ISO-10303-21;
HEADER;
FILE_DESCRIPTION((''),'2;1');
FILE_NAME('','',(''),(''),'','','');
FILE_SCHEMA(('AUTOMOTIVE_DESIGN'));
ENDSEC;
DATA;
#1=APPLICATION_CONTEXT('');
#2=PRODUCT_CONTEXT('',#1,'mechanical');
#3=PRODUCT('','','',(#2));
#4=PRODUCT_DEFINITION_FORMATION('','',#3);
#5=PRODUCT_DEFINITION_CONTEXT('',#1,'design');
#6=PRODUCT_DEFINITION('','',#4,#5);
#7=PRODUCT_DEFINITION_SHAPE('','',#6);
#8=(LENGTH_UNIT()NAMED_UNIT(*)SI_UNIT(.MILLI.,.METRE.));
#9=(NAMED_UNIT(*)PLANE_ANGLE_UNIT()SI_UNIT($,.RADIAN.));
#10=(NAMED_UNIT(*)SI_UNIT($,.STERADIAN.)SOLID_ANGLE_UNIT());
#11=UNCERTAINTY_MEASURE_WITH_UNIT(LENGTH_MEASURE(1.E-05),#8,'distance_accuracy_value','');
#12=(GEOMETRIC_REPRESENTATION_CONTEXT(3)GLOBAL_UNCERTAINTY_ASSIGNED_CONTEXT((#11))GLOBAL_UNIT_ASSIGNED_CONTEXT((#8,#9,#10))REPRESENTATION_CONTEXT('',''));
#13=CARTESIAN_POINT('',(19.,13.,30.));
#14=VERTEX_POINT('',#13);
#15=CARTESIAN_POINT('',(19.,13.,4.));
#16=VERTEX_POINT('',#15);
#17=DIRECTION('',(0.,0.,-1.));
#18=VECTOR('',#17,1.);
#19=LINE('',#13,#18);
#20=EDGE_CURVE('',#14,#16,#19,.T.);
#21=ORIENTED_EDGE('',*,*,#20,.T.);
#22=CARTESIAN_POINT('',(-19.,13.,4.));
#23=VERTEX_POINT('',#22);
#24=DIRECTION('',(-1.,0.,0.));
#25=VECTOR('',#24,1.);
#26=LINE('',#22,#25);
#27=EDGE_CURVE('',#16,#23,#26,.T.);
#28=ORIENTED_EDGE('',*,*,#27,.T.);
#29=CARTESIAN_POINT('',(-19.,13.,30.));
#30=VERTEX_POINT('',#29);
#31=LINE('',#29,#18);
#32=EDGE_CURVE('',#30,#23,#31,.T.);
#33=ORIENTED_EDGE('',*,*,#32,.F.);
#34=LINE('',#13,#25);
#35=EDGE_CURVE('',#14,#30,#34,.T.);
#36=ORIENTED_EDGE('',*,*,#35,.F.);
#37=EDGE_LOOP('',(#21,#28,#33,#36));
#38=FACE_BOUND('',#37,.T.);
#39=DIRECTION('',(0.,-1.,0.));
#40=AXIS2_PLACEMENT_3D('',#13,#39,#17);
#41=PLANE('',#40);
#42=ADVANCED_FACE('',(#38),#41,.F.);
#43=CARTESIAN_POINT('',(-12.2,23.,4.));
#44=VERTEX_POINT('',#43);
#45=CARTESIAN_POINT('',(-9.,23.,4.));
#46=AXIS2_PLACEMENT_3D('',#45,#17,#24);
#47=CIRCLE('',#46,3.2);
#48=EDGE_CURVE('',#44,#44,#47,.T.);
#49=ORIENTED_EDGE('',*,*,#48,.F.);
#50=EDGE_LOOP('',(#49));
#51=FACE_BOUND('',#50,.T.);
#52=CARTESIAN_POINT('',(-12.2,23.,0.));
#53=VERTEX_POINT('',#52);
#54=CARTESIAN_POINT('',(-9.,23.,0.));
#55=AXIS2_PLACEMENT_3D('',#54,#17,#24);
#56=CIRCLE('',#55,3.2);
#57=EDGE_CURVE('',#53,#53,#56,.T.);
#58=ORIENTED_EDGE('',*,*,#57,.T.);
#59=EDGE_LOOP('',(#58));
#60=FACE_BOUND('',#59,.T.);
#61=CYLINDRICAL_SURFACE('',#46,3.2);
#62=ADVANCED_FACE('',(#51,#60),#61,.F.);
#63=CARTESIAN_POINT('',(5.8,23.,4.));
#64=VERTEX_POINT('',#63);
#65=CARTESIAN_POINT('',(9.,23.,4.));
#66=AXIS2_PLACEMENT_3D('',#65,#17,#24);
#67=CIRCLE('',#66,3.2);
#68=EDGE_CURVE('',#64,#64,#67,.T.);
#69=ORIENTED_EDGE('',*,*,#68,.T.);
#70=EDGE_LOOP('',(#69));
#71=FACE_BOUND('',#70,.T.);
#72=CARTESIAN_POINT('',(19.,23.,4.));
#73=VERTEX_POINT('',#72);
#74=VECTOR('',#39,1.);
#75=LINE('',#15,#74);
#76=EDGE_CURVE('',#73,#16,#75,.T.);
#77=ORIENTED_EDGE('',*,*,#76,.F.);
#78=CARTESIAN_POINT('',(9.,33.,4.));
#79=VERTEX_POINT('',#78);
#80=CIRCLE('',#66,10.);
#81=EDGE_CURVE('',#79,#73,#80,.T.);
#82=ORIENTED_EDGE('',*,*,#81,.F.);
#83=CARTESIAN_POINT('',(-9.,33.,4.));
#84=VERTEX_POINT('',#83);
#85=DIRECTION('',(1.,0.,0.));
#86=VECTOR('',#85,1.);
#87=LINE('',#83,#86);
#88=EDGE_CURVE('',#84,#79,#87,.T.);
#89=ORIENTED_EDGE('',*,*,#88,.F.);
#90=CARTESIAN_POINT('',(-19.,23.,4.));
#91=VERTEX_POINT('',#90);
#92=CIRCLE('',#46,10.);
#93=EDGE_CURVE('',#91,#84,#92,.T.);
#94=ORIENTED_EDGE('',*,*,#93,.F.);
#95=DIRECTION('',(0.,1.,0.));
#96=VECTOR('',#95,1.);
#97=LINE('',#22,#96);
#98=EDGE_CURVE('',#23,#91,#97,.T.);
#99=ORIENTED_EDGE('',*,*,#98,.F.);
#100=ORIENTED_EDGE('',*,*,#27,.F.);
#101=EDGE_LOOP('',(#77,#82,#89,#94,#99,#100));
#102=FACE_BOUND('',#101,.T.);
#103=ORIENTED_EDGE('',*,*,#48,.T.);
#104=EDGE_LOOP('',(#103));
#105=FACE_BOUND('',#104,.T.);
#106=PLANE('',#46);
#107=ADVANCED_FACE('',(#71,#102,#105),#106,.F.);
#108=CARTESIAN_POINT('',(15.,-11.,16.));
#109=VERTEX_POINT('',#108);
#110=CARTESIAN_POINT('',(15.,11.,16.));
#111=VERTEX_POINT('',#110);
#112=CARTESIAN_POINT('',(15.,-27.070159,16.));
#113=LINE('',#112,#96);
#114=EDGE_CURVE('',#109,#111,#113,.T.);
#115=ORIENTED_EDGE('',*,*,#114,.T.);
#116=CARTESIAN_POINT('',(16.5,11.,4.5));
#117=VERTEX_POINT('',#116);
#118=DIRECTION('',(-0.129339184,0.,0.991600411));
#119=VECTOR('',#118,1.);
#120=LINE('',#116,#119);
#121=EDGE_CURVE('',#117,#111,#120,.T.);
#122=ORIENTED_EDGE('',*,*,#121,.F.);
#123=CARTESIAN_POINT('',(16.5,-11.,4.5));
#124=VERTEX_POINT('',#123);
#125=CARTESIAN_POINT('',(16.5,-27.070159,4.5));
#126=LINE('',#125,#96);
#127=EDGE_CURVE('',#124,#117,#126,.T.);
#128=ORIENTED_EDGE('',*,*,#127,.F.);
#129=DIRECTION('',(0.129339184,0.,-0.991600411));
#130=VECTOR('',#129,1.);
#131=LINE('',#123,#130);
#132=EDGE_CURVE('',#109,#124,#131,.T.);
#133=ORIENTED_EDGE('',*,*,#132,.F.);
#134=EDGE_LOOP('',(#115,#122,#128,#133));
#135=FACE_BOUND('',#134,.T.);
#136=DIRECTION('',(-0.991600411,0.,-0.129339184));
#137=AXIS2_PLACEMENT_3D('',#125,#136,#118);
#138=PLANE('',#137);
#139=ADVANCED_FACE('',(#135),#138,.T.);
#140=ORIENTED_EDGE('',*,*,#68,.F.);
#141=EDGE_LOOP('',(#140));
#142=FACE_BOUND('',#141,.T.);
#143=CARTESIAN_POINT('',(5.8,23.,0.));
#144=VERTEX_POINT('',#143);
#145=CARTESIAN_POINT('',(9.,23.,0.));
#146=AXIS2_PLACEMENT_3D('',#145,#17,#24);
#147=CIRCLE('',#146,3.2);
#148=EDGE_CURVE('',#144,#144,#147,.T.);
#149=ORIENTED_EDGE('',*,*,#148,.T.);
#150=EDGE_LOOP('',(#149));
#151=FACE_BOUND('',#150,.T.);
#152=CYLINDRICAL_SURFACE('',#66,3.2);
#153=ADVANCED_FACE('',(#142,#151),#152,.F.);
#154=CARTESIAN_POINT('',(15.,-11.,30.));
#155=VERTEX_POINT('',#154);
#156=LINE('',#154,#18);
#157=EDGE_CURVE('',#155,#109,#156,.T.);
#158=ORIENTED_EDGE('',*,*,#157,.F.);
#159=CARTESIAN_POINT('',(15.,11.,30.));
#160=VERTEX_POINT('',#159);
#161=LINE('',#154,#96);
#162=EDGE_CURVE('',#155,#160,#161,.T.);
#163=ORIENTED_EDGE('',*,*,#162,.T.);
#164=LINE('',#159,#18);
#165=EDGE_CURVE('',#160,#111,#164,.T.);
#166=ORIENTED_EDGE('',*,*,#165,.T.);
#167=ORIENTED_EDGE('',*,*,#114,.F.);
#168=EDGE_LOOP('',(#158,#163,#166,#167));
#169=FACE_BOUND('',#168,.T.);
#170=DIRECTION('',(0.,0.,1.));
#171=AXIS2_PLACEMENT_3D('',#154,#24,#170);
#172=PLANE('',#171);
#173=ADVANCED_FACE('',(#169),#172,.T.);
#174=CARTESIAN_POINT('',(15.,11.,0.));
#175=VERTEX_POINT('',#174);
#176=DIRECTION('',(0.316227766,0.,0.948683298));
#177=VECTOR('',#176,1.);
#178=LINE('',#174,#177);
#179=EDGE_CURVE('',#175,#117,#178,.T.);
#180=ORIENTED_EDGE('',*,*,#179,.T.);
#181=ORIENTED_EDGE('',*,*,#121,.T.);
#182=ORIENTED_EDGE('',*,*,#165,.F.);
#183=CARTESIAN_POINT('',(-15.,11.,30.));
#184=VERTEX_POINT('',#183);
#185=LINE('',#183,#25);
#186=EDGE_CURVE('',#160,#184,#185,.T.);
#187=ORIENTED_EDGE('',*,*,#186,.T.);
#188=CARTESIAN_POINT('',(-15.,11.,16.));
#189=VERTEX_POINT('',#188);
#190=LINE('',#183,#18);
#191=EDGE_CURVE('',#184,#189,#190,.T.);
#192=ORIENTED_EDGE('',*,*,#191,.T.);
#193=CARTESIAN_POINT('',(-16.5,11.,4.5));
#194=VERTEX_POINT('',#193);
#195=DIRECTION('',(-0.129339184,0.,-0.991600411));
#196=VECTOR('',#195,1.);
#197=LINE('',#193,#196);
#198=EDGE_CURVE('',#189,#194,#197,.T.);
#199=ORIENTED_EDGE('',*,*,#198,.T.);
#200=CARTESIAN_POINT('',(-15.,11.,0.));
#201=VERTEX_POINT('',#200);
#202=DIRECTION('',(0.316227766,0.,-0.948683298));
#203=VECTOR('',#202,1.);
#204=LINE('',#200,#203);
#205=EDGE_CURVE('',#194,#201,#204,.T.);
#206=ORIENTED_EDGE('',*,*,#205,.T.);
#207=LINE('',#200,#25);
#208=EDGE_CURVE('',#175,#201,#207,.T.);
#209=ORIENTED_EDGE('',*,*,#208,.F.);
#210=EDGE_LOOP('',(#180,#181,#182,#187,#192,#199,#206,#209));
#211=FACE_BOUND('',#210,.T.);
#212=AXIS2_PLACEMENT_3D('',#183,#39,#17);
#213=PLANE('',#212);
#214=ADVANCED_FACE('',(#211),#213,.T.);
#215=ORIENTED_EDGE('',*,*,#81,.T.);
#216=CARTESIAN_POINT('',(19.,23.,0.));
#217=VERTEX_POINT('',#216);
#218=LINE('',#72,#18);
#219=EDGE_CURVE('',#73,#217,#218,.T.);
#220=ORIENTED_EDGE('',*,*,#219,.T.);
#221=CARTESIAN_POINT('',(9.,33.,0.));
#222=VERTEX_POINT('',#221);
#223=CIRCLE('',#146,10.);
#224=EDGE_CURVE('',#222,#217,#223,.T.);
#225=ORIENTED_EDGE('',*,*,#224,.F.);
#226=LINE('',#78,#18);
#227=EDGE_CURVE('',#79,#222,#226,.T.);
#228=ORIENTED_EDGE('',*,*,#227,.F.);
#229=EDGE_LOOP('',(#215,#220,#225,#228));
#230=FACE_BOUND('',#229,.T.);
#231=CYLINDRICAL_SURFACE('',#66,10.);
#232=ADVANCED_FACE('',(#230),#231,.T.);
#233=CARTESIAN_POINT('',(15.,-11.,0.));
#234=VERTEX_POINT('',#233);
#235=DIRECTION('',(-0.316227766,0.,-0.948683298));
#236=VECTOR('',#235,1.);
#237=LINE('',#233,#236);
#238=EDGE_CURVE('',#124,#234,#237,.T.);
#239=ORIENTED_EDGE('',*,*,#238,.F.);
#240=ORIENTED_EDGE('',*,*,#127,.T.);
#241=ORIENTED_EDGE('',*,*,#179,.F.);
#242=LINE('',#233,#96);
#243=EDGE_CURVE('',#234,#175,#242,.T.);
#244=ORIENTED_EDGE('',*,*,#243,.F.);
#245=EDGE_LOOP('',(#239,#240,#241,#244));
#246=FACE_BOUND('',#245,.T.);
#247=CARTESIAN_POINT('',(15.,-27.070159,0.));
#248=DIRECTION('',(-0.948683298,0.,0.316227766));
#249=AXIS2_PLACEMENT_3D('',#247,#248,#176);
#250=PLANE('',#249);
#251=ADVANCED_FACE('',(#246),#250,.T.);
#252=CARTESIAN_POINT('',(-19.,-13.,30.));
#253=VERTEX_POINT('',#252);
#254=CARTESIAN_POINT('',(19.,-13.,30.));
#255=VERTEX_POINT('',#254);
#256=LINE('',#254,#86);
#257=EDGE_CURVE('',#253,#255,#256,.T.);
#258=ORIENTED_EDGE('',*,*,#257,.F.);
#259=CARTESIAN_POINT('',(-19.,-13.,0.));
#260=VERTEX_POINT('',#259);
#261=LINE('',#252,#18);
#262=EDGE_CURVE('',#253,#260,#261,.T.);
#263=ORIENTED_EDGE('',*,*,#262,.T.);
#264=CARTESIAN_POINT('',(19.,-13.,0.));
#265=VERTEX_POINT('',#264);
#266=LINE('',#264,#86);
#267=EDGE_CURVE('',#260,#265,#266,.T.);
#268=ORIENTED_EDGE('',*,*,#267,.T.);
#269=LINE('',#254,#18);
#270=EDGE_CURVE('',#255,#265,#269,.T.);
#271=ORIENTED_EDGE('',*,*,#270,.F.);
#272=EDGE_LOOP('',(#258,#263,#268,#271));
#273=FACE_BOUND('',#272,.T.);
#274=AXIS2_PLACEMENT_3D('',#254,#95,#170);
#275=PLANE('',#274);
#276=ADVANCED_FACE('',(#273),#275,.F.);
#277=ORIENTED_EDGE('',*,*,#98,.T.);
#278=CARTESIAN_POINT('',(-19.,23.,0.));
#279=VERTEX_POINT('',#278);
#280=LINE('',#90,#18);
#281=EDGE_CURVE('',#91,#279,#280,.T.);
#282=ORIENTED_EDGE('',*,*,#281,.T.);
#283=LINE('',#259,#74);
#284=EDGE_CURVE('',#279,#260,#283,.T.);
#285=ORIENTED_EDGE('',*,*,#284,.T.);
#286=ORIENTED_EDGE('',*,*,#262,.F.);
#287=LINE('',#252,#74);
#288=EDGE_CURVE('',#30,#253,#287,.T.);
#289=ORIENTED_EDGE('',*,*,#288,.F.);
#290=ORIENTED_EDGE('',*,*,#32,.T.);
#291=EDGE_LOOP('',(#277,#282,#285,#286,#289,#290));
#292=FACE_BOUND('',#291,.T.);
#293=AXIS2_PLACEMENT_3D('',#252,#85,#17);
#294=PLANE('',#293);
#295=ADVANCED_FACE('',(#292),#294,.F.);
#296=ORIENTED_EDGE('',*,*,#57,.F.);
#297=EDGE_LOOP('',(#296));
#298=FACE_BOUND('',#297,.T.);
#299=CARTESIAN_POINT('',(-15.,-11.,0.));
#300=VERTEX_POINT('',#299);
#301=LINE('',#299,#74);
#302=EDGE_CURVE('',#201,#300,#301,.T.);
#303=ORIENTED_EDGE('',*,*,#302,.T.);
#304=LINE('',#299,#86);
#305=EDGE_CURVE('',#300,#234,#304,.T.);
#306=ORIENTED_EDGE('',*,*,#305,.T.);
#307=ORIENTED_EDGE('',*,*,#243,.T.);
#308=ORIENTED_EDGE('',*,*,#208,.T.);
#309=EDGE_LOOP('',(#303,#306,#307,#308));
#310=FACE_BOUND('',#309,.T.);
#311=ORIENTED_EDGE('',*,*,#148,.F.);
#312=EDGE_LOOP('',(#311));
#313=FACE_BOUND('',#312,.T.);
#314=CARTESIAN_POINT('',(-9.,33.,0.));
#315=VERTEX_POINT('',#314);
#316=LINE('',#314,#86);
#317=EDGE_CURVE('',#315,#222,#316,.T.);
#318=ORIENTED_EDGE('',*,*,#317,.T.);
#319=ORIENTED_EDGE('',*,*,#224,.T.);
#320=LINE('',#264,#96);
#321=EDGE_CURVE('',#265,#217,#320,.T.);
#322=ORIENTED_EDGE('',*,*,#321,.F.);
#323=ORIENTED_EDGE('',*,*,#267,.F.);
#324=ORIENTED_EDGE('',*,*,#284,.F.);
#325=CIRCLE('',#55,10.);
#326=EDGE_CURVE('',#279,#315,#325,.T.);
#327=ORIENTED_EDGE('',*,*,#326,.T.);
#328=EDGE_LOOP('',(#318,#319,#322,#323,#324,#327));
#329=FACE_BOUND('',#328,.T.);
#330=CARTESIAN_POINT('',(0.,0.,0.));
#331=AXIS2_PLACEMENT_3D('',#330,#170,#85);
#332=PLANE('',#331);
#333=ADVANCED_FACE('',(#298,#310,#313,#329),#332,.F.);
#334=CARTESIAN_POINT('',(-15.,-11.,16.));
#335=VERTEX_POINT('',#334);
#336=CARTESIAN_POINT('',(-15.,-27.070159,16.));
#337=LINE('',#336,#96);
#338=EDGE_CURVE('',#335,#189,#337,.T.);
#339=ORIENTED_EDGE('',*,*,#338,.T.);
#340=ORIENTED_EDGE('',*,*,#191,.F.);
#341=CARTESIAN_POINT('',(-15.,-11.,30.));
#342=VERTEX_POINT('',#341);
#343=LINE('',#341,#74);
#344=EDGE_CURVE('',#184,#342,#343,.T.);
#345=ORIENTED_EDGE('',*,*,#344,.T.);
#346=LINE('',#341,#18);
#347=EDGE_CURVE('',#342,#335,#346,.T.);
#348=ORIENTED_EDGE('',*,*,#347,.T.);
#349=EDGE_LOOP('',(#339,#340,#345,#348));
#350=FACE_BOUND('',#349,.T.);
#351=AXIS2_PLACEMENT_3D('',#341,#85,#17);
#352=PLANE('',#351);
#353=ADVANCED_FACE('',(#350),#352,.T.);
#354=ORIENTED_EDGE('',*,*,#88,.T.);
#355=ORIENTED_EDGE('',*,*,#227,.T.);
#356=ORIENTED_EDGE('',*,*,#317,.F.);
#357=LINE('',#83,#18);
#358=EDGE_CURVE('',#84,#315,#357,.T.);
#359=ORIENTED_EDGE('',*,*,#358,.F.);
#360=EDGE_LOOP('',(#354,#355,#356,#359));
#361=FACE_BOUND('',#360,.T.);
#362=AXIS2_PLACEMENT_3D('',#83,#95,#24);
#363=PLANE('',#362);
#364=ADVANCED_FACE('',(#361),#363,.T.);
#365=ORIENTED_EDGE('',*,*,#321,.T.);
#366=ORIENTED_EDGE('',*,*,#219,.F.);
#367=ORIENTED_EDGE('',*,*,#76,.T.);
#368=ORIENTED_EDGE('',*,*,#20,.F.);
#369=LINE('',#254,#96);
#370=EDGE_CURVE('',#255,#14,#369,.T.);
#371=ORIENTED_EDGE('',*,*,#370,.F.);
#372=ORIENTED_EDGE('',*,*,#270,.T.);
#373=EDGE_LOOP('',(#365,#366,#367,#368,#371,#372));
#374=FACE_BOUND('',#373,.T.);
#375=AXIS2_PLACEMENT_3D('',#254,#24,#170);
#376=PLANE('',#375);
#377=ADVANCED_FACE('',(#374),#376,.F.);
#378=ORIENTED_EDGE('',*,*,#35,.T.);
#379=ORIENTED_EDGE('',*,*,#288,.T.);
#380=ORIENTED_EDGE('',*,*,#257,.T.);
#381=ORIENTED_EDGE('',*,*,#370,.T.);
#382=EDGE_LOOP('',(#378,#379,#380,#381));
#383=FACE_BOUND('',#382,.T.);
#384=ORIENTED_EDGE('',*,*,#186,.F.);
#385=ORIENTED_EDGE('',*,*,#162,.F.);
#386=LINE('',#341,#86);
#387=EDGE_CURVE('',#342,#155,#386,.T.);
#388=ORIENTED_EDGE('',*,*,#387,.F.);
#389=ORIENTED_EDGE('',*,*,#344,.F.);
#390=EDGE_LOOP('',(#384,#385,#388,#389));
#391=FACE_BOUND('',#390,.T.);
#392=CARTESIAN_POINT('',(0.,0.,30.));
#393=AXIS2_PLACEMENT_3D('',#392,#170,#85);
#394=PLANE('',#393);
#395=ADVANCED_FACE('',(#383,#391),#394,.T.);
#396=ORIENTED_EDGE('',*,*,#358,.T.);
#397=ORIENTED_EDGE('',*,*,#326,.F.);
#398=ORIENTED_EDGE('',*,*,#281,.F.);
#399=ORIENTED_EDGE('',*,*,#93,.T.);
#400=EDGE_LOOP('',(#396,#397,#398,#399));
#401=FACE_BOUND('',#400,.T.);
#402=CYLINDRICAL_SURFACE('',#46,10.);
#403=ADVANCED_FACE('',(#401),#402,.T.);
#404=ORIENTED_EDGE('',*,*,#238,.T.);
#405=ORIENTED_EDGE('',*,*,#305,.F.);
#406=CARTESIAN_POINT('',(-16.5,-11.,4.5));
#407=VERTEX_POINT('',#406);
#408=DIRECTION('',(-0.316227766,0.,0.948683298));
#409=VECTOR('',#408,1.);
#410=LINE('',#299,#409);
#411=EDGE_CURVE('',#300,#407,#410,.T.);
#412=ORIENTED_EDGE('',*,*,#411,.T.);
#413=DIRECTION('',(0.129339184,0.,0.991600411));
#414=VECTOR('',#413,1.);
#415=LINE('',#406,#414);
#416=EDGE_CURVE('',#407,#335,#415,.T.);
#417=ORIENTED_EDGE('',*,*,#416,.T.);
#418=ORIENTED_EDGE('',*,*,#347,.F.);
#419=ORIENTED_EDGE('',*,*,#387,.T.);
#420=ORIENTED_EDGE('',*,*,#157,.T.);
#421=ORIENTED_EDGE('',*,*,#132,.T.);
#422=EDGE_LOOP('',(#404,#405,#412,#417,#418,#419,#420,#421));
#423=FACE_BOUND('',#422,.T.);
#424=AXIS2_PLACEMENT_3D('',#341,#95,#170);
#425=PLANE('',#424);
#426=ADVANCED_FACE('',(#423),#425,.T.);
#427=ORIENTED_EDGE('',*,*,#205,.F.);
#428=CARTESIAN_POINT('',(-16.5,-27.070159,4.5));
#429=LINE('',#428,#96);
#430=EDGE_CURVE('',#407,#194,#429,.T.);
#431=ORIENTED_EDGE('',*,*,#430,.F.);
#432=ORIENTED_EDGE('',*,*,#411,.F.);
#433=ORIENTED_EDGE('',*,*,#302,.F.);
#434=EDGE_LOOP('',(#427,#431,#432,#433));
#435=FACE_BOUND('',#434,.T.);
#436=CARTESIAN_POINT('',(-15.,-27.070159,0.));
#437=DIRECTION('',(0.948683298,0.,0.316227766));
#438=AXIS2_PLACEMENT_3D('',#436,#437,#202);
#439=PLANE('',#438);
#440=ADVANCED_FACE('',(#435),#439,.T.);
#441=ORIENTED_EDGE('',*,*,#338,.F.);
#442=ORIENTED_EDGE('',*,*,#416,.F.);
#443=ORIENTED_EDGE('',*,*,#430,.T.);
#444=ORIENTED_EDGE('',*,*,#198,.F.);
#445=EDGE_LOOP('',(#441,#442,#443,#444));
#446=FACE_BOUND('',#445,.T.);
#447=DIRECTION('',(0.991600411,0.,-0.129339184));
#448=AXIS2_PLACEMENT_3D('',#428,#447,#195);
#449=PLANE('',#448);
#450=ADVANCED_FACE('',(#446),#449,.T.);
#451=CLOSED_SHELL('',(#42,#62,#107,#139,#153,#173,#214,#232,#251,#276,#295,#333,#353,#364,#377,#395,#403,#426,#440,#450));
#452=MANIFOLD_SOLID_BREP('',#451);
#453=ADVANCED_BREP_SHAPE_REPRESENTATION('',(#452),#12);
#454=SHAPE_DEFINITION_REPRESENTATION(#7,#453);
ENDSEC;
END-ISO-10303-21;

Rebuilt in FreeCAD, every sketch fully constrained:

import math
import FreeCAD as App
import Part
import Sketcher

V = App.Vector
Q = App.Units.Quantity


def add_polygon(sketch, points):
    """Adds a closed chain of lines whose ends are joined by coincident constraints."""
    first, n = sketch.GeometryCount, len(points)
    for a, b in zip(points, points[1:] + points[:1]):
        sketch.addGeometry(Part.LineSegment(App.Vector(*a, 0), App.Vector(*b, 0)), False)
    for i in range(n):
        sketch.addConstraint(Sketcher.Constraint("Coincident", first + i, 2, first + (i + 1) % n, 1))

doc = App.newDocument("Part")
body = doc.addObject("PartDesign::Body", "Body")

# Sketch on XY plane
sketch1 = body.newObject("Sketcher::SketchObject", "Sketch")
sketch1.AttachmentSupport = (doc.getObject("XY_Plane"), [""])
sketch1.MapMode = "FlatFace"
add_polygon(sketch1, [(-19, 13), (-19, -13), (19, -13), (19, 13)])  # lines 0-3
add_polygon(sketch1, [(15, -11), (-15, -11), (-15, 11), (15, 11)])  # lines 4-7
sketch1.addConstraint(Sketcher.Constraint("Vertical", 0))
sketch1.addConstraint(Sketcher.Constraint("Horizontal", 1))
sketch1.addConstraint(Sketcher.Constraint("Vertical", 2))
sketch1.addConstraint(Sketcher.Constraint("Horizontal", 3))
sketch1.addConstraint(Sketcher.Constraint("Horizontal", 4))
sketch1.addConstraint(Sketcher.Constraint("Vertical", 5))
sketch1.addConstraint(Sketcher.Constraint("Horizontal", 6))
sketch1.addConstraint(Sketcher.Constraint("Vertical", 7))
sketch1.addConstraint(Sketcher.Constraint("Symmetric", 0, 2, 2, 2, -1, 1))
sketch1.addConstraint(Sketcher.Constraint("Symmetric", 4, 2, 6, 2, -1, 1))
sketch1.addConstraint(Sketcher.Constraint("DistanceX", 1, 1, 1, 2, Q("38 mm")))
sketch1.addConstraint(Sketcher.Constraint("DistanceX", 4, 2, 4, 1, Q("30 mm")))
sketch1.addConstraint(Sketcher.Constraint("DistanceY", 0, 2, 0, 1, Q("26 mm")))
sketch1.addConstraint(Sketcher.Constraint("DistanceY", 5, 1, 5, 2, Q("22 mm")))
pad1 = body.newObject("PartDesign::Pad", "Pad")
pad1.Profile = sketch1
pad1.Length = 30

# Sketch on XZ plane
sketch2 = body.newObject("Sketcher::SketchObject", "Sketch001")
sketch2.AttachmentSupport = (doc.getObject("XZ_Plane"), [""])
sketch2.MapMode = "FlatFace"
sketch2.AttachmentOffset = App.Placement(V(0, 0, -11), App.Rotation())
add_polygon(sketch2, [(15, 0), (16.5, 4.5), (15, 16)])  # lines 0-2
add_polygon(sketch2, [(-15, 0), (-15, 16), (-16.5, 4.5)])  # lines 3-5
sketch2.addConstraint(Sketcher.Constraint("Vertical", 2))
sketch2.addConstraint(Sketcher.Constraint("Vertical", 3))
sketch2.addConstraint(Sketcher.Constraint("Symmetric", 2, 2, 5, 2, -1, 1))
sketch2.addConstraint(Sketcher.Constraint("Symmetric", 0, 2, 4, 2, -2))
sketch2.addConstraint(Sketcher.Constraint("PointOnObject", 2, 2, -1))
sketch2.addConstraint(Sketcher.Constraint("Horizontal", 1, 2, 3, 2))
sketch2.addConstraint(Sketcher.Constraint("DistanceY", 2, 2, 2, 1, Q("16 mm")))
sketch2.addConstraint(Sketcher.Constraint("DistanceX", -1, 1, 1, 2, Q("15 mm")))
sketch2.addConstraint(Sketcher.Constraint("DistanceX", 4, 2, 0, 2, Q("33 mm")))
sketch2.addConstraint(Sketcher.Constraint("DistanceY", -1, 1, 0, 2, Q("4.5 mm")))
pocket1 = body.newObject("PartDesign::Pocket", "Pocket")
pocket1.Profile = sketch2
pocket1.Length = 22
pocket1.Reversed = True

# Sketch on XY plane
sketch3 = body.newObject("Sketcher::SketchObject", "Sketch002")
sketch3.AttachmentSupport = (doc.getObject("XY_Plane"), [""])
sketch3.MapMode = "FlatFace"
sketch3.addGeometry(Part.LineSegment(V(19, 13, 0), V(-19, 13, 0)), False)
sketch3.addGeometry(Part.LineSegment(V(-19, 13, 0), V(-19, 23, 0)), False)
sketch3.addGeometry(Part.ArcOfCircle(Part.Circle(V(-9, 23, 0), V(0, 0, 1), 10), math.radians(90), math.radians(180)), False)
sketch3.addGeometry(Part.LineSegment(V(-9, 33, 0), V(9, 33, 0)), False)
sketch3.addGeometry(Part.ArcOfCircle(Part.Circle(V(9, 23, 0), V(0, 0, 1), 10), math.radians(0), math.radians(90)), False)
sketch3.addGeometry(Part.LineSegment(V(19, 23, 0), V(19, 13, 0)), False)
sketch3.addGeometry(Part.Circle(V(-9, 23, 0), V(0, 0, 1), 3.2), False)
sketch3.addGeometry(Part.Circle(V(9, 23, 0), V(0, 0, 1), 3.2), False)
sketch3.addConstraint(Sketcher.Constraint("Coincident", 0, 2, 1, 1))
sketch3.addConstraint(Sketcher.Constraint("Tangent", 1, 2, 2, 2))
sketch3.addConstraint(Sketcher.Constraint("Tangent", 2, 1, 3, 1))
sketch3.addConstraint(Sketcher.Constraint("Tangent", 3, 2, 4, 2))
sketch3.addConstraint(Sketcher.Constraint("Tangent", 4, 1, 5, 1))
sketch3.addConstraint(Sketcher.Constraint("Coincident", 5, 2, 0, 1))
sketch3.addConstraint(Sketcher.Constraint("Horizontal", 0))
sketch3.addConstraint(Sketcher.Constraint("Vertical", 1))
sketch3.addConstraint(Sketcher.Constraint("Horizontal", 3))
sketch3.addConstraint(Sketcher.Constraint("Vertical", 5))
sketch3.addConstraint(Sketcher.Constraint("Coincident", 6, 3, 2, 3))
sketch3.addConstraint(Sketcher.Constraint("Coincident", 7, 3, 4, 3))
sketch3.addConstraint(Sketcher.Constraint("Equal", 2, 4))
sketch3.addConstraint(Sketcher.Constraint("Equal", 6, 7))
sketch3.addConstraint(Sketcher.Constraint("Radius", 2, Q("10 mm")))
sketch3.addConstraint(Sketcher.Constraint("Diameter", 6, Q("6.4 mm")))
sketch3.addConstraint(Sketcher.Constraint("DistanceX", 0, 2, 0, 1, Q("38 mm")))
sketch3.addConstraint(Sketcher.Constraint("DistanceY", 1, 1, 1, 2, Q("10 mm")))
sketch3.addConstraint(Sketcher.Constraint("DistanceX", 2, 3, -1, 1, Q("9 mm")))
sketch3.addConstraint(Sketcher.Constraint("DistanceY", -1, 1, 2, 3, Q("23 mm")))
pad2 = body.newObject("PartDesign::Pad", "Pad001")
pad2.Profile = sketch3
pad2.Length = 4

doc.recompute()
